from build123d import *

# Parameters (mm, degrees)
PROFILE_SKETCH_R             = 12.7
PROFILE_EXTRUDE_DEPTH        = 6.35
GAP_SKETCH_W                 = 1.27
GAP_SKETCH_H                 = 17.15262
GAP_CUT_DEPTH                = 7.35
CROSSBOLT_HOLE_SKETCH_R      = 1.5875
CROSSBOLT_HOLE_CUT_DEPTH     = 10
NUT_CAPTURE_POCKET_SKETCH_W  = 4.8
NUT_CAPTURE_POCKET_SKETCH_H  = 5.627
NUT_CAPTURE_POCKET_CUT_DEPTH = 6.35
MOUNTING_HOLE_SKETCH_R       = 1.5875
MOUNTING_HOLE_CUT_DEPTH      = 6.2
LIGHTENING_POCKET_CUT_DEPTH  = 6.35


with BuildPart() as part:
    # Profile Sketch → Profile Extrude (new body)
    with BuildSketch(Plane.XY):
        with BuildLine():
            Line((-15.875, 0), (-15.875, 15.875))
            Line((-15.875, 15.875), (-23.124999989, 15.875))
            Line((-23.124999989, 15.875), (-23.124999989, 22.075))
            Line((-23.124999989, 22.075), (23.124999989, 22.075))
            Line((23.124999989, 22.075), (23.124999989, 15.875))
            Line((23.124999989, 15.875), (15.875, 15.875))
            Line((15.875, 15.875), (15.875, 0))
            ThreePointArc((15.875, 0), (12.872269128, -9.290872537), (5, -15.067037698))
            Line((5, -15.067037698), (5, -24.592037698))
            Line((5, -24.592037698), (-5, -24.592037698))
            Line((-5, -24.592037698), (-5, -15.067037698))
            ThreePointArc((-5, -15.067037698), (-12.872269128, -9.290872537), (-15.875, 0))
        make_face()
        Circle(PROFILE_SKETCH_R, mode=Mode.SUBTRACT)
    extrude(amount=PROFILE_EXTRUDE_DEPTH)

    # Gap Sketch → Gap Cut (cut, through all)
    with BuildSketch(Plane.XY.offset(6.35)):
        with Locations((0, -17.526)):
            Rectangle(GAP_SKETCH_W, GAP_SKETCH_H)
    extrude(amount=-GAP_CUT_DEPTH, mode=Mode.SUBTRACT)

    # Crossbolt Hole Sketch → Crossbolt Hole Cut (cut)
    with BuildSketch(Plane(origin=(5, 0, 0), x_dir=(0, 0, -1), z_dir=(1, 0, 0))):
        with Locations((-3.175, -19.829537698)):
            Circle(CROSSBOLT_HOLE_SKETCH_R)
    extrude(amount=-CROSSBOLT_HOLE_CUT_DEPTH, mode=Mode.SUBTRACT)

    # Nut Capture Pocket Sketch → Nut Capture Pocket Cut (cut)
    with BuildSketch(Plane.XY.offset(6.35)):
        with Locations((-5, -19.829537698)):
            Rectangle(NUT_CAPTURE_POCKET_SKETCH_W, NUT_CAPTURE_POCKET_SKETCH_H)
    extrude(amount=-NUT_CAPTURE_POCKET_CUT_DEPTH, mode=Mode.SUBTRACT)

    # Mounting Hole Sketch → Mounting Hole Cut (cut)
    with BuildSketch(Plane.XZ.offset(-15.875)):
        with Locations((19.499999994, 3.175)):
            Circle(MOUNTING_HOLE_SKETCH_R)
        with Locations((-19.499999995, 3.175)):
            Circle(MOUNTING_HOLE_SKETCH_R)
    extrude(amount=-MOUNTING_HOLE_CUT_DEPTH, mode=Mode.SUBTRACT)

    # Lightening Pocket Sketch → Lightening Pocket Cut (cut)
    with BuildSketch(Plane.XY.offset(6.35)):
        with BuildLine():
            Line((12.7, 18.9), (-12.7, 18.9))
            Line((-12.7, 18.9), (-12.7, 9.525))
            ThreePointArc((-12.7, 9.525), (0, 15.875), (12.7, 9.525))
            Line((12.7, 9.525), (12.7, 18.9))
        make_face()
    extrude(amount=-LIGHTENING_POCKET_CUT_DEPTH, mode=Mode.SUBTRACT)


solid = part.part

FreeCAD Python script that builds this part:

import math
import FreeCAD as App
import Part
import Sketcher
from FreeCAD import Vector
Q = App.Units.Quantity


def add_polygon(sketch, points):
    """Adds a closed chain of lines whose ends are joined by coincident constraints."""
    first, n = sketch.GeometryCount, len(points)
    for a, b in zip(points, points[1:] + points[:1]):
        sketch.addGeometry(Part.LineSegment(App.Vector(*a, 0), App.Vector(*b, 0)), False)
    for i in range(n):
        sketch.addConstraint(Sketcher.Constraint("Coincident", first + i, 2, first + (i + 1) % n, 1))

doc = App.newDocument("Part")
body = doc.addObject("PartDesign::Body", "Body")

sketch1 = body.newObject("Sketcher::SketchObject", "Sketch")
sketch1.AttachmentSupport = (doc.getObject("XY_Plane"), [""])
sketch1.MapMode = "FlatFace"
sketch1.addGeometry([
    Part.LineSegment(Vector(-16, 16, 0), Vector(-16, 0, 0)),
    Part.ArcOfCircle(Part.Circle(Vector(0, 0, 0), Vector(0, 0, 1), 16), math.radians(180), math.radians(252)),
    Part.LineSegment(Vector(-5, -15, 0), Vector(-5, -25, 0)),
    Part.LineSegment(Vector(-5, -25, 0), Vector(5, -25, 0)),
    Part.LineSegment(Vector(5, -25, 0), Vector(5, -15, 0)),
    Part.ArcOfCircle(Part.Circle(Vector(0, 0, 0), Vector(0, 0, 1), 16), math.radians(-72), math.radians(0)),
    Part.LineSegment(Vector(16, 0, 0), Vector(16, 16, 0)),
    Part.LineSegment(Vector(16, 16, 0), Vector(23, 16, 0)),
    Part.LineSegment(Vector(23, 16, 0), Vector(23, 22, 0)),
    Part.LineSegment(Vector(23, 22, 0), Vector(-23, 22, 0)),
    Part.LineSegment(Vector(-23, 22, 0), Vector(-23, 16, 0)),
    Part.LineSegment(Vector(-23, 16, 0), Vector(-16, 16, 0)),
    Part.Circle(Vector(0, 0, 0), Vector(0, 0, 1), 13),
], False)
sketch1.addConstraint([
    Sketcher.Constraint("Tangent", 0, 2, 1, 1),
    Sketcher.Constraint("Coincident", 1, 2, 2, 1),
    Sketcher.Constraint("Coincident", 2, 2, 3, 1),
    Sketcher.Constraint("Coincident", 3, 2, 4, 1),
    Sketcher.Constraint("Coincident", 4, 2, 5, 1),
    Sketcher.Constraint("Tangent", 5, 2, 6, 1),
    Sketcher.Constraint("Coincident", 6, 2, 7, 1),
    Sketcher.Constraint("Coincident", 7, 2, 8, 1),
    Sketcher.Constraint("Coincident", 8, 2, 9, 1),
    Sketcher.Constraint("Coincident", 9, 2, 10, 1),
    Sketcher.Constraint("Coincident", 10, 2, 11, 1),
    Sketcher.Constraint("Coincident", 11, 2, 0, 1),
    Sketcher.Constraint("Vertical", 0),
    Sketcher.Constraint("Vertical", 2),
    Sketcher.Constraint("Horizontal", 3),
    Sketcher.Constraint("Vertical", 4),
    Sketcher.Constraint("Vertical", 6),
    Sketcher.Constraint("Horizontal", 7),
    Sketcher.Constraint("Vertical", 8),
    Sketcher.Constraint("Horizontal", 9),
    Sketcher.Constraint("Vertical", 10),
    Sketcher.Constraint("Horizontal", 11),
    Sketcher.Constraint("Coincident", 1, 3, -1, 1),
    Sketcher.Constraint("Coincident", 5, 3, -1, 1),
    Sketcher.Constraint("Coincident", 12, 3, -1, 1),
    Sketcher.Constraint("Equal", 1, 5),
    Sketcher.Constraint("Symmetric", 7, 2, 10, 2, -2),
    Sketcher.Constraint("Horizontal", 1, 2, 4, 2),
    Sketcher.Constraint("Diameter", 12, Q("1 in")),
    Sketcher.Constraint("Radius", 1, Q("0.625 in")),
    Sketcher.Constraint("DistanceY", 0, 2, 0, 1, Q("0.625 in")),
    Sketcher.Constraint("DistanceY", 2, 2, 2, 1, Q("0.375 in")),
    Sketcher.Constraint("DistanceX", 3, 1, 3, 2, 10.0),
    Sketcher.Constraint("DistanceX", 7, 1, 7, 2, 7.25),
    Sketcher.Constraint("DistanceY", 8, 1, 8, 2, 6.2),
])
pad1 = body.newObject("PartDesign::Pad", "Pad")
pad1.Profile = sketch1
pad1.Length = Q("0.25 in")

sketch2 = body.newObject("Sketcher::SketchObject", "Sketch001")
sketch2.AttachmentSupport = (doc.getObject("XY_Plane"), [""])
sketch2.MapMode = "FlatFace"
sketch2.AttachmentOffset = App.Placement(Vector(0, 0, 0.25 * 25.4), App.Rotation())
add_polygon(sketch2, [(-0.6, -8.9), (-0.6, -26.1), (0.6, -26.1), (0.6, -8.9)])
sketch2.addConstraint([
    Sketcher.Constraint("Vertical", 0),
    Sketcher.Constraint("Horizontal", 1),
    Sketcher.Constraint("Vertical", 2),
    Sketcher.Constraint("Horizontal", 3),
    Sketcher.Constraint("DistanceX", 1, 1, 1, 2, Q("0.05 in")),
    Sketcher.Constraint("DistanceY", 0, 2, 0, 1, Q("0.6753 in")),
    Sketcher.Constraint("DistanceX", 0, 2, -1, 1, Q("0.025 in")),
    Sketcher.Constraint("DistanceY", 0, 2, -1, 1, 26.10231),
])
pocket1 = body.newObject("PartDesign::Pocket", "Pocket")
pocket1.Profile = sketch2
pocket1.Type = "ThroughAll"

sketch3 = body.newObject("Sketcher::SketchObject", "Sketch002")
sketch3.AttachmentSupport = (doc.getObject("YZ_Plane"), [""])
sketch3.MapMode = "FlatFace"
sketch3.AttachmentOffset = App.Placement(Vector(0, 0, 5), App.Rotation())
sketch3.addGeometry(Part.Circle(Vector(-19.8, 3.2, 0), Vector(0, 0, 1), 1.6), False)
sketch3.addConstraint([
    Sketcher.Constraint("Diameter", 0, Q("0.125 in")),
    Sketcher.Constraint("DistanceY", -1, 1, 0, 3, Q("0.125 in")),
    Sketcher.Constraint("DistanceX", 0, 3, -1, 1, 19.829538),
])
pocket2 = body.newObject("PartDesign::Pocket", "Pocket001")
pocket2.Profile = sketch3
pocket2.Length = 10

sketch4 = body.newObject("Sketcher::SketchObject", "Sketch003")
sketch4.AttachmentSupport = (doc.getObject("XY_Plane"), [""])
sketch4.MapMode = "FlatFace"
sketch4.AttachmentOffset = App.Placement(Vector(0, 0, 0.25 * 25.4), App.Rotation())
add_polygon(sketch4, [(-7.4, -17), (-7.4, -22.6), (-2.6, -22.6), (-2.6, -17)])
sketch4.addConstraint([
    Sketcher.Constraint("Vertical", 0),
    Sketcher.Constraint("Horizontal", 1),
    Sketcher.Constraint("Vertical", 2),
    Sketcher.Constraint("Horizontal", 3),
    Sketcher.Constraint("DistanceX", 1, 1, 1, 2, 4.8),
    Sketcher.Constraint("DistanceY", 0, 2, 0, 1, 5.627),
    Sketcher.Constraint("DistanceX", 0, 2, -1, 1, 7.4),
    Sketcher.Constraint("DistanceY", 0, 2, -1, 1, 22.643038),
])
pocket3 = body.newObject("PartDesign::Pocket", "Pocket002")
pocket3.Profile = sketch4
pocket3.Length = Q("0.25 in")

sketch5 = body.newObject("Sketcher::SketchObject", "Sketch004")
sketch5.AttachmentSupport = (doc.getObject("XZ_Plane"), [""])
sketch5.MapMode = "FlatFace"
sketch5.AttachmentOffset = App.Placement(Vector(0, 0, -0.625 * 25.4), App.Rotation())
sketch5.addGeometry([
    Part.Circle(Vector(19.5, 3.2, 0), Vector(0, 0, 1), 1.6),
    Part.Circle(Vector(-19.5, 3.2, 0), Vector(0, 0, 1), 1.6),
], False)
sketch5.addConstraint([
    Sketcher.Constraint("Equal", 0, 1),
    Sketcher.Constraint("Symmetric", 0, 3, 1, 3, -2),
    Sketcher.Constraint("Diameter", 0, Q("0.125 in")),
    Sketcher.Constraint("DistanceY", -1, 1, 0, 3, Q("0.125 in")),
    Sketcher.Constraint("DistanceX", -1, 1, 0, 3, 19.5),
])
pocket4 = body.newObject("PartDesign::Pocket", "Pocket003")
pocket4.Profile = sketch5
pocket4.Length = 6.2

sketch6 = body.newObject("Sketcher::SketchObject", "Sketch005")
sketch6.AttachmentSupport = (doc.getObject("XY_Plane"), [""])
sketch6.MapMode = "FlatFace"
sketch6.AttachmentOffset = App.Placement(Vector(0, 0, 0.25 * 25.4), App.Rotation())
sketch6.addGeometry([
    Part.LineSegment(Vector(13, 19, 0), Vector(-13, 19, 0)),
    Part.LineSegment(Vector(-13, 19, 0), Vector(-13, 10, 0)),
    Part.ArcOfCircle(Part.Circle(Vector(0, 0, 0), Vector(0, 0, 1), 16), math.radians(37), math.radians(143)),
    Part.LineSegment(Vector(13, 10, 0), Vector(13, 19, 0)),
], False)
sketch6.addConstraint([
    Sketcher.Constraint("Coincident", 0, 2, 1, 1),
    Sketcher.Constraint("Coincident", 1, 2, 2, 2),
    Sketcher.Constraint("Coincident", 2, 1, 3, 1),
    Sketcher.Constraint("Coincident", 3, 2, 0, 1),
    Sketcher.Constraint("Horizontal", 0),
    Sketcher.Constraint("Vertical", 1),
    Sketcher.Constraint("Vertical", 3),
    Sketcher.Constraint("Coincident", 2, 3, -1, 1),
    Sketcher.Constraint("Horizontal", 1, 2, 2, 1),
    Sketcher.Constraint("DistanceX", 0, 2, 0, 1, Q("1 in")),
    Sketcher.Constraint("Radius", 2, Q("0.625 in")),
    Sketcher.Constraint("DistanceY", 1, 2, 1, 1, 9.375),
])
pocket5 = body.newObject("PartDesign::Pocket", "Pocket004")
pocket5.Profile = sketch6
pocket5.Length = Q("0.25 in")

doc.recompute()
